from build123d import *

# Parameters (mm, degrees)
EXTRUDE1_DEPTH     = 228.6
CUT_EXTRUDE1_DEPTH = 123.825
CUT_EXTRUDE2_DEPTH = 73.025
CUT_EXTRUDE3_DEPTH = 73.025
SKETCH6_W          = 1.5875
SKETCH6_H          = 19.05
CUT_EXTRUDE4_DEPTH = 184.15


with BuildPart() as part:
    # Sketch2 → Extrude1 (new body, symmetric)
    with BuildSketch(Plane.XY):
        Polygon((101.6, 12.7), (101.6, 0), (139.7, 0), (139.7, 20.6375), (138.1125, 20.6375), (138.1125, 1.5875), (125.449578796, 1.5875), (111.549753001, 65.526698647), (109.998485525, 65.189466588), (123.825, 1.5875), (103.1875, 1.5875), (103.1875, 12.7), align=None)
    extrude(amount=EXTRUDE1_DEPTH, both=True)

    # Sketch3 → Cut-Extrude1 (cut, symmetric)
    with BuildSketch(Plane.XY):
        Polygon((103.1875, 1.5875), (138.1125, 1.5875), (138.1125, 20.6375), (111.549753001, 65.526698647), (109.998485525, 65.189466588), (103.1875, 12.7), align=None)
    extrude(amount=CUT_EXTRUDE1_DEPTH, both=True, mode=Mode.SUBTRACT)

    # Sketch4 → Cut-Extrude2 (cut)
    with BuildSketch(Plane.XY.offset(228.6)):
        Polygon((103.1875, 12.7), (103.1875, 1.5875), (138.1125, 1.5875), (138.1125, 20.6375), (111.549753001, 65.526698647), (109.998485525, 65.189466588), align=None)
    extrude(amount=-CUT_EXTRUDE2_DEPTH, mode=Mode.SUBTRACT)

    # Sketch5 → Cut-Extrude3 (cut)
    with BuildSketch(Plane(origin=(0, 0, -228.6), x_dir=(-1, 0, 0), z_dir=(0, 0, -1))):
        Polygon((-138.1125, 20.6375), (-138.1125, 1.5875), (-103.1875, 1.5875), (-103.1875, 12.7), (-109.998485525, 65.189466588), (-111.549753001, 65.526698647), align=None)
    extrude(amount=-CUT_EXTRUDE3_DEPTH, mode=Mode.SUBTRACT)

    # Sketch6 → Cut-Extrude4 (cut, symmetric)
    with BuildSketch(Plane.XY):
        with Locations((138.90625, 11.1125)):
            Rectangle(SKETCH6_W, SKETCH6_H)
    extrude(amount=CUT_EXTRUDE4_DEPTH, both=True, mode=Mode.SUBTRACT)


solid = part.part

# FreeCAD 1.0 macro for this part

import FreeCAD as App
import Part
import Sketcher
Q = App.Units.Quantity

doc = App.newDocument("Part")
params = doc.addObject("Spreadsheet::Sheet", "Params")
for row, (alias, value) in enumerate([
    ("sketch1_width", "1.5 in"),
    ("sketch1_height", "0.5 in"),
    ("sketch1_height2", "0.75 in"),
    ("sketch1_width2", "0.0625 in"),
    ("sketch1_width3", "0.8125 in"),
    ("pad1_length", "18 in"),
    ("sketch2_height", "0.75 in"),
    ("sketch2_width", "1.375 in"),
    ("sketch2_height2", "0.4375 in"),
    ("sketch2_length", "0.0625 in"),
    ("pocket1_length", "9.75 in"),
    ("sketch3_height", "0.75 in"),
    ("sketch3_width", "1.375 in"),
    ("sketch3_height2", "0.4375 in"),
    ("sketch3_length", "0.0625 in"),
    ("pocket2_length", "2.875 in"),
    ("sketch4_height", "0.75 in"),
    ("sketch4_width", "1.375 in"),
    ("sketch4_height2", "0.4375 in"),
    ("sketch4_length", "0.0625 in"),
    ("pocket3_length", "2.875 in"),
    ("sketch5_height", "0.75 in"),
    ("sketch5_width", "0.0625 in"),
    ("pocket4_length", "14.5 in"),
], start=1):
    params.set(f"A{row}", alias)
    params.set(f"B{row}", "=" + value)
    params.setAlias(f"B{row}", alias)

body = doc.addObject("PartDesign::Body", "Body")

sketch1 = body.newObject("Sketcher::SketchObject", "Sketch")
sketch1.AttachmentSupport = (doc.getObject("XY_Plane"), [""])
sketch1.MapMode = "FlatFace"
sketch1.addGeometry([
    Part.LineSegment(App.Vector(101.6, 12.7, 0), App.Vector(101.6, 0, 0)),
    Part.LineSegment(App.Vector(101.6, 0, 0), App.Vector(139.7, 0, 0)),
    Part.LineSegment(App.Vector(139.7, 0, 0), App.Vector(139.7, 20.6, 0)),
    Part.LineSegment(App.Vector(139.7, 20.6, 0), App.Vector(138.1, 20.6, 0)),
    Part.LineSegment(App.Vector(138.1, 20.6, 0), App.Vector(138.1, 1.6, 0)),
    Part.LineSegment(App.Vector(138.1, 1.6, 0), App.Vector(125.4, 1.6, 0)),
    Part.LineSegment(App.Vector(125.4, 1.6, 0), App.Vector(111.5, 65.5, 0)),
    Part.LineSegment(App.Vector(111.5, 65.5, 0), App.Vector(110, 65.2, 0)),
    Part.LineSegment(App.Vector(110, 65.2, 0), App.Vector(123.8, 1.6, 0)),
    Part.LineSegment(App.Vector(123.8, 1.6, 0), App.Vector(103.2, 1.6, 0)),
    Part.LineSegment(App.Vector(103.2, 1.6, 0), App.Vector(103.2, 12.7, 0)),
    Part.LineSegment(App.Vector(103.2, 12.7, 0), App.Vector(101.6, 12.7, 0)),
], False)
sketch1.addConstraint([
    Sketcher.Constraint("Coincident", 0, 2, 1, 1),
    Sketcher.Constraint("Coincident", 1, 2, 2, 1),
    Sketcher.Constraint("Coincident", 2, 2, 3, 1),
    Sketcher.Constraint("Coincident", 3, 2, 4, 1),
    Sketcher.Constraint("Coincident", 4, 2, 5, 1),
    Sketcher.Constraint("Coincident", 5, 2, 6, 1),
    Sketcher.Constraint("Coincident", 6, 2, 7, 1),
    Sketcher.Constraint("Coincident", 7, 2, 8, 1),
    Sketcher.Constraint("Coincident", 8, 2, 9, 1),
    Sketcher.Constraint("Coincident", 9, 2, 10, 1),
    Sketcher.Constraint("Coincident", 10, 2, 11, 1),
    Sketcher.Constraint("Coincident", 11, 2, 0, 1),
    Sketcher.Constraint("Vertical", 0),
    Sketcher.Constraint("Horizontal", 1),
    Sketcher.Constraint("Vertical", 2),
    Sketcher.Constraint("Horizontal", 3),
    Sketcher.Constraint("Vertical", 4),
    Sketcher.Constraint("Horizontal", 5),
    Sketcher.Constraint("Horizontal", 9),
    Sketcher.Constraint("Vertical", 10),
    Sketcher.Constraint("Horizontal", 11),
    Sketcher.Constraint("PointOnObject", 0, 2, -1),
    Sketcher.Constraint("Perpendicular", 6, 7),
    Sketcher.Constraint("Perpendicular", 7, 8),
    Sketcher.Constraint("Horizontal", 5, 2, 8, 2),
    Sketcher.Constraint("Equal", 3, 11),
    Sketcher.Constraint("Equal", 9, 2),
    Sketcher.Constraint("DistanceX", 1, 1, 1, 2, Q("1.5 in")),
    Sketcher.Constraint("DistanceY", 0, 2, 0, 1, Q("0.5 in")),
    Sketcher.Constraint("DistanceX", -1, 1, 0, 2, Q("4 in")),
    Sketcher.Constraint("DistanceY", 4, 2, 4, 1, Q("0.75 in")),
    Sketcher.Constraint("DistanceX", 3, 2, 3, 1, Q("0.0625 in")),
    Sketcher.Constraint("DistanceX", 9, 2, 9, 1, Q("0.8125 in")),
    Sketcher.Constraint("Distance", 7, Q("0.0625 in")),
    Sketcher.Constraint("Distance", 8, Q("2.5625 in")),
    Sketcher.Constraint("DistanceY", -1, 1, 6, 2, 65.526699),
])
sketch1.setExpression("Constraints[27]", "Params.sketch1_width")
sketch1.setExpression("Constraints[28]", "Params.sketch1_height")
sketch1.setExpression("Constraints[30]", "Params.sketch1_height2")
sketch1.setExpression("Constraints[31]", "Params.sketch1_width2")
sketch1.setExpression("Constraints[32]", "Params.sketch1_width3")
pad1 = body.newObject("PartDesign::Pad", "Pad")
pad1.Profile = sketch1
pad1.setExpression("Length", "Params.pad1_length")
pad1.Midplane = True

sketch2 = body.newObject("Sketcher::SketchObject", "Sketch001")
sketch2.AttachmentSupport = (doc.getObject("XY_Plane"), [""])
sketch2.MapMode = "FlatFace"
sketch2.addGeometry([
    Part.LineSegment(App.Vector(103.2, 1.6, 0), App.Vector(138.1, 1.6, 0)),
    Part.LineSegment(App.Vector(138.1, 1.6, 0), App.Vector(138.1, 20.6, 0)),
    Part.LineSegment(App.Vector(138.1, 20.6, 0), App.Vector(111.5, 65.5, 0)),
    Part.LineSegment(App.Vector(111.5, 65.5, 0), App.Vector(110, 65.2, 0)),
    Part.LineSegment(App.Vector(110, 65.2, 0), App.Vector(103.2, 12.7, 0)),
    Part.LineSegment(App.Vector(103.2, 12.7, 0), App.Vector(103.2, 1.6, 0)),
], False)
sketch2.addConstraint([
    Sketcher.Constraint("Coincident", 0, 2, 1, 1),
    Sketcher.Constraint("Coincident", 1, 2, 2, 1),
    Sketcher.Constraint("Coincident", 2, 2, 3, 1),
    Sketcher.Constraint("Coincident", 3, 2, 4, 1),
    Sketcher.Constraint("Coincident", 4, 2, 5, 1),
    Sketcher.Constraint("Coincident", 5, 2, 0, 1),
    Sketcher.Constraint("Horizontal", 0),
    Sketcher.Constraint("Vertical", 1),
    Sketcher.Constraint("Vertical", 5),
    Sketcher.Constraint("DistanceY", 1, 1, 1, 2, Q("0.75 in")),
    Sketcher.Constraint("DistanceY", -1, 1, 4, 2, Q("0.5 in")),
    Sketcher.Constraint("DistanceX", 0, 1, 0, 2, Q("1.375 in")),
    Sketcher.Constraint("DistanceY", 5, 2, 5, 1, Q("0.4375 in")),
    Sketcher.Constraint("Distance", 3, Q("0.0625 in")),
    Sketcher.Constraint("DistanceX", -1, 1, 0, 2, Q("5.4375 in")),
    Sketcher.Constraint("DistanceY", -1, 1, 2, 2, 65.526699),
    Sketcher.Constraint("Distance", 2, 52.15956),
    Sketcher.Constraint("Distance", 4, 52.929516),
])
sketch2.setExpression("Constraints[9]", "Params.sketch2_height")
sketch2.setExpression("Constraints[11]", "Params.sketch2_width")
sketch2.setExpression("Constraints[12]", "Params.sketch2_height2")
sketch2.setExpression("Constraints[13]", "Params.sketch2_length")
pocket1 = body.newObject("PartDesign::Pocket", "Pocket")
pocket1.Profile = sketch2
pocket1.setExpression("Length", "Params.pocket1_length")
pocket1.Midplane = True

sketch3 = body.newObject("Sketcher::SketchObject", "Sketch002")
sketch3.AttachmentSupport = (doc.getObject("XY_Plane"), [""])
sketch3.MapMode = "FlatFace"
sketch3.AttachmentOffset = App.Placement(App.Vector(0, 0, 9 * 25.4), App.Rotation())
sketch3.addGeometry([
    Part.LineSegment(App.Vector(103.2, 12.7, 0), App.Vector(103.2, 1.6, 0)),
    Part.LineSegment(App.Vector(103.2, 1.6, 0), App.Vector(138.1, 1.6, 0)),
    Part.LineSegment(App.Vector(138.1, 1.6, 0), App.Vector(138.1, 20.6, 0)),
    Part.LineSegment(App.Vector(138.1, 20.6, 0), App.Vector(111.5, 65.5, 0)),
    Part.LineSegment(App.Vector(111.5, 65.5, 0), App.Vector(110, 65.2, 0)),
    Part.LineSegment(App.Vector(110, 65.2, 0), App.Vector(103.2, 12.7, 0)),
], False)
sketch3.addConstraint([
    Sketcher.Constraint("Coincident", 0, 2, 1, 1),
    Sketcher.Constraint("Coincident", 1, 2, 2, 1),
    Sketcher.Constraint("Coincident", 2, 2, 3, 1),
    Sketcher.Constraint("Coincident", 3, 2, 4, 1),
    Sketcher.Constraint("Coincident", 4, 2, 5, 1),
    Sketcher.Constraint("Coincident", 5, 2, 0, 1),
    Sketcher.Constraint("Vertical", 0),
    Sketcher.Constraint("Horizontal", 1),
    Sketcher.Constraint("Vertical", 2),
    Sketcher.Constraint("DistanceY", 2, 1, 2, 2, Q("0.75 in")),
    Sketcher.Constraint("DistanceY", -1, 1, 5, 2, Q("0.5 in")),
    Sketcher.Constraint("DistanceX", 1, 1, 1, 2, Q("1.375 in")),
    Sketcher.Constraint("DistanceY", 0, 2, 0, 1, Q("0.4375 in")),
    Sketcher.Constraint("Distance", 4, Q("0.0625 in")),
    Sketcher.Constraint("DistanceX", -1, 1, 0, 2, Q("4.0625 in")),
    Sketcher.Constraint("DistanceY", -1, 1, 3, 2, 65.526699),
    Sketcher.Constraint("Distance", 3, 52.15956),
    Sketcher.Constraint("Distance", 5, 52.929516),
])
sketch3.setExpression("Constraints[9]", "Params.sketch3_height")
sketch3.setExpression("Constraints[11]", "Params.sketch3_width")
sketch3.setExpression("Constraints[12]", "Params.sketch3_height2")
sketch3.setExpression("Constraints[13]", "Params.sketch3_length")
pocket2 = body.newObject("PartDesign::Pocket", "Pocket001")
pocket2.Profile = sketch3
pocket2.setExpression("Length", "Params.pocket2_length")

sketch4 = body.newObject("Sketcher::SketchObject", "Sketch003")
sketch4.AttachmentSupport = (doc.getObject("XY_Plane"), [""])
sketch4.MapMode = "FlatFace"
sketch4.AttachmentOffset = App.Placement(App.Vector(0, 0, -9 * 25.4), App.Rotation())
sketch4.addGeometry([
    Part.LineSegment(App.Vector(138.1, 20.6, 0), App.Vector(138.1, 1.6, 0)),
    Part.LineSegment(App.Vector(138.1, 1.6, 0), App.Vector(103.2, 1.6, 0)),
    Part.LineSegment(App.Vector(103.2, 1.6, 0), App.Vector(103.2, 12.7, 0)),
    Part.LineSegment(App.Vector(103.2, 12.7, 0), App.Vector(110, 65.2, 0)),
    Part.LineSegment(App.Vector(110, 65.2, 0), App.Vector(111.5, 65.5, 0)),
    Part.LineSegment(App.Vector(111.5, 65.5, 0), App.Vector(138.1, 20.6, 0)),
], False)
sketch4.addConstraint([
    Sketcher.Constraint("Coincident", 0, 2, 1, 1),
    Sketcher.Constraint("Coincident", 1, 2, 2, 1),
    Sketcher.Constraint("Coincident", 2, 2, 3, 1),
    Sketcher.Constraint("Coincident", 3, 2, 4, 1),
    Sketcher.Constraint("Coincident", 4, 2, 5, 1),
    Sketcher.Constraint("Coincident", 5, 2, 0, 1),
    Sketcher.Constraint("Vertical", 0),
    Sketcher.Constraint("Horizontal", 1),
    Sketcher.Constraint("Vertical", 2),
    Sketcher.Constraint("DistanceY", 0, 2, 0, 1, Q("0.75 in")),
    Sketcher.Constraint("DistanceY", -1, 1, 2, 2, Q("0.5 in")),
    Sketcher.Constraint("DistanceX", 1, 2, 1, 1, Q("1.375 in")),
    Sketcher.Constraint("DistanceY", 2, 1, 2, 2, Q("0.4375 in")),
    Sketcher.Constraint("Distance", 4, Q("0.0625 in")),
    Sketcher.Constraint("DistanceX", -1, 1, 0, 2, Q("5.4375 in")),
    Sketcher.Constraint("DistanceY", -1, 1, 4, 2, 65.526699),
    Sketcher.Constraint("Distance", 5, 52.15956),
    Sketcher.Constraint("Distance", 3, 52.929516),
])
sketch4.setExpression("Constraints[9]", "Params.sketch4_height")
sketch4.setExpression("Constraints[11]", "Params.sketch4_width")
sketch4.setExpression("Constraints[12]", "Params.sketch4_height2")
sketch4.setExpression("Constraints[13]", "Params.sketch4_length")
pocket3 = body.newObject("PartDesign::Pocket", "Pocket002")
pocket3.Profile = sketch4
pocket3.setExpression("Length", "Params.pocket3_length")
pocket3.Reversed = True

sketch5 = body.newObject("Sketcher::SketchObject", "Sketch004")
sketch5.AttachmentSupport = (doc.getObject("XY_Plane"), [""])
sketch5.MapMode = "FlatFace"
sketch5.addGeometry([
    Part.LineSegment(App.Vector(138.1, 20.6, 0), App.Vector(138.1, 1.6, 0)),
    Part.LineSegment(App.Vector(138.1, 1.6, 0), App.Vector(139.7, 1.6, 0)),
    Part.LineSegment(App.Vector(139.7, 1.6, 0), App.Vector(139.7, 20.6, 0)),
    Part.LineSegment(App.Vector(139.7, 20.6, 0), App.Vector(138.1, 20.6, 0)),
], False)
sketch5.addConstraint([
    Sketcher.Constraint("Coincident", 0, 2, 1, 1),
    Sketcher.Constraint("Coincident", 1, 2, 2, 1),
    Sketcher.Constraint("Coincident", 2, 2, 3, 1),
    Sketcher.Constraint("Coincident", 3, 2, 0, 1),
    Sketcher.Constraint("Vertical", 0),
    Sketcher.Constraint("Horizontal", 1),
    Sketcher.Constraint("Vertical", 2),
    Sketcher.Constraint("Horizontal", 3),
    Sketcher.Constraint("DistanceY", 0, 2, 0, 1, Q("0.75 in")),
    Sketcher.Constraint("DistanceX", -1, 1, 1, 2, Q("5.5 in")),
    Sketcher.Constraint("DistanceX", 1, 1, 1, 2, Q("0.0625 in")),
    Sketcher.Constraint("DistanceY", -1, 1, 0, 2, Q("0.0625 in")),
])
sketch5.setExpression("Constraints[8]", "Params.sketch5_height")
sketch5.setExpression("Constraints[10]", "Params.sketch5_width")
pocket4 = body.newObject("PartDesign::Pocket", "Pocket003")
pocket4.Profile = sketch5
pocket4.setExpression("Length", "Params.pocket4_length")
pocket4.Midplane = True

doc.recompute()
